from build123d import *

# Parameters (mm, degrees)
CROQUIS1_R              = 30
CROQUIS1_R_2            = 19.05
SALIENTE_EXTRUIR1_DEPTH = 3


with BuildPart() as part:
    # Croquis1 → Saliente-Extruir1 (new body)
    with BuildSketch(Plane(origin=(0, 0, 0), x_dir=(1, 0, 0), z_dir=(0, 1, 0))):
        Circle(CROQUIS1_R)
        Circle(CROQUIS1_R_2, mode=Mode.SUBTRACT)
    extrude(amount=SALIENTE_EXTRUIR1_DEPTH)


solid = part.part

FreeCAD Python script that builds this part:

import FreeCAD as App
import Part
import Sketcher
from FreeCAD import Vector

doc = App.newDocument("Part")
body = doc.addObject("PartDesign::Body", "Body")

sketch1 = body.newObject("Sketcher::SketchObject", "Sketch")
sketch1.AttachmentSupport = (doc.getObject("XZ_Plane"), [""])
sketch1.MapMode = "FlatFace"
sketch1.addGeometry([
    Part.Circle(Vector(0, 0, 0), Vector(0, 0, 1), 30),
    Part.Circle(Vector(0, 0, 0), Vector(0, 0, 1), 19.05),
], False)
sketch1.addConstraint([
    Sketcher.Constraint("Coincident", 0, 3, -1, 1),
    Sketcher.Constraint("Coincident", 1, 3, -1, 1),
    Sketcher.Constraint("Diameter", 0, 60.0),
    Sketcher.Constraint("Diameter", 1, 38.1),
])
pad1 = body.newObject("PartDesign::Pad", "Pad")
pad1.Profile = sketch1
pad1.Length = 3
pad1.Reversed = True

doc.recompute()
